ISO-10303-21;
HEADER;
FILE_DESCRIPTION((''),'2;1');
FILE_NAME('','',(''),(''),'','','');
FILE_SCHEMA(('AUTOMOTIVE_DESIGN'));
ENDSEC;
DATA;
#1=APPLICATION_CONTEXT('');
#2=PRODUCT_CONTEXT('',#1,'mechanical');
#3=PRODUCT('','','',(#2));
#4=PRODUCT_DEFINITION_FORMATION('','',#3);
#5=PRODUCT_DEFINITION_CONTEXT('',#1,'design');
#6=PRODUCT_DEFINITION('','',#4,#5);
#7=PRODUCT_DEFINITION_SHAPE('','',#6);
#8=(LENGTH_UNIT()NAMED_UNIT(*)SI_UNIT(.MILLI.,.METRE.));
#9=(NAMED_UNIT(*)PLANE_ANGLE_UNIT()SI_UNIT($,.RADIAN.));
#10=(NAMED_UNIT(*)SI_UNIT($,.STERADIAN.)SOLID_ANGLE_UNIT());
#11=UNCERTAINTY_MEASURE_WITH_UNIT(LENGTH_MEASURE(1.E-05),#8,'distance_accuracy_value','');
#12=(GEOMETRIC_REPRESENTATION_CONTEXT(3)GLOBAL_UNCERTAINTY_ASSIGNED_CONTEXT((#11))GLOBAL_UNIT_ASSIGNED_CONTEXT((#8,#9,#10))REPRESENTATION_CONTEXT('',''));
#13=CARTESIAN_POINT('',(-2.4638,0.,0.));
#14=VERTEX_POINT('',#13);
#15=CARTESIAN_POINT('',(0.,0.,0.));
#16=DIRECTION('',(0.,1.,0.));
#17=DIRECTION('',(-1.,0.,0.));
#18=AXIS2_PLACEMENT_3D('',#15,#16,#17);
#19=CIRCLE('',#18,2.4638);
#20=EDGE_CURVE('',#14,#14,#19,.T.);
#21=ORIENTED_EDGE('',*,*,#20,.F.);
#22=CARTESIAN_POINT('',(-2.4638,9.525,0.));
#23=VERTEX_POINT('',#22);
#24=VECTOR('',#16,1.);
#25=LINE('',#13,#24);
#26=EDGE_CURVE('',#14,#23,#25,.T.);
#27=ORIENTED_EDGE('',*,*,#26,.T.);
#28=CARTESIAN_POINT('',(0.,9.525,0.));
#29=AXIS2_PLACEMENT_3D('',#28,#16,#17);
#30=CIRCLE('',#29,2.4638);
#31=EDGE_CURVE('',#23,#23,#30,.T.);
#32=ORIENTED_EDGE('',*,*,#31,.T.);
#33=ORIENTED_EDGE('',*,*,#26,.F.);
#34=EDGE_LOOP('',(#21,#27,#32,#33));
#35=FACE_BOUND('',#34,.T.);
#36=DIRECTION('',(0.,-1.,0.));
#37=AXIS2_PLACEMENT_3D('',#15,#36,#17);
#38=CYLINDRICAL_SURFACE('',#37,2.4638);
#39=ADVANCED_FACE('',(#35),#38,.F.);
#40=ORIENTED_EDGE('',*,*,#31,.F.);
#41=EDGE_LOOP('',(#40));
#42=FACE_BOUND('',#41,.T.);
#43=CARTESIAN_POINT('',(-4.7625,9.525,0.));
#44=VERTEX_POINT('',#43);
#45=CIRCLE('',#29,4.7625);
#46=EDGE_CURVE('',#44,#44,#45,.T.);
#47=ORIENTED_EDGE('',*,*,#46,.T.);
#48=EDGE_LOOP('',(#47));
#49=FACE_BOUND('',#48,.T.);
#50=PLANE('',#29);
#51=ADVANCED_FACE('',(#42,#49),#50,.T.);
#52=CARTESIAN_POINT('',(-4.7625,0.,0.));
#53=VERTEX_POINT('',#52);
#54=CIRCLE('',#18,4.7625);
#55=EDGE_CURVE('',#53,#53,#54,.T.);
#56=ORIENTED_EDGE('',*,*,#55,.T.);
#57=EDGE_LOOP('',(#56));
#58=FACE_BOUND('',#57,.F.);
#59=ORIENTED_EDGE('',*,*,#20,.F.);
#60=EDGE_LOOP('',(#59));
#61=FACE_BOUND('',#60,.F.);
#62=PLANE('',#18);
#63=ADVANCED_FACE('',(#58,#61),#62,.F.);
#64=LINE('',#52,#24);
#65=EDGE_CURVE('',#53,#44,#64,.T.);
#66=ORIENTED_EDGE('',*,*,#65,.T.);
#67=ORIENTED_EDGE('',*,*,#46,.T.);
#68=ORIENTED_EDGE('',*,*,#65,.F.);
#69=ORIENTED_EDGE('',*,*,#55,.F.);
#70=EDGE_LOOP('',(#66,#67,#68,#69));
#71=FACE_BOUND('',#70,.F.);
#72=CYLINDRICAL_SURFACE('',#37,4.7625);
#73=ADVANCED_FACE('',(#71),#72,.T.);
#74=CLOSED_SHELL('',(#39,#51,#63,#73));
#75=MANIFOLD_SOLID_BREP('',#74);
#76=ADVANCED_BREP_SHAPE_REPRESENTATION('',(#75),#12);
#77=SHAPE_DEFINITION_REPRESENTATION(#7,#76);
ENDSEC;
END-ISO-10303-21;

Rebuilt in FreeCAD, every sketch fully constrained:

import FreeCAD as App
import Part
import Sketcher

V = App.Vector
Q = App.Units.Quantity

doc = App.newDocument("Part")
body = doc.addObject("PartDesign::Body", "Body")

# Sketch on XZ plane
sketch1 = body.newObject("Sketcher::SketchObject", "Sketch")
sketch1.AttachmentSupport = (doc.getObject("XZ_Plane"), [""])
sketch1.MapMode = "FlatFace"
sketch1.addGeometry([
    Part.Circle(V(0, 0, 0), V(0, 0, 1), 4.8),
    Part.Circle(V(0, 0, 0), V(0, 0, 1), 2.5),
], False)
sketch1.addConstraint([
    Sketcher.Constraint("Coincident", 0, 3, -1, 1),
    Sketcher.Constraint("Coincident", 1, 3, -1, 1),
    Sketcher.Constraint("Diameter", 0, Q("0.375 in")),
    Sketcher.Constraint("Diameter", 1, Q("0.194 in")),
])
pad1 = body.newObject("PartDesign::Pad", "Pad")
pad1.Profile = sketch1
pad1.Length = Q("0.375 in")
pad1.Reversed = True

doc.recompute()
